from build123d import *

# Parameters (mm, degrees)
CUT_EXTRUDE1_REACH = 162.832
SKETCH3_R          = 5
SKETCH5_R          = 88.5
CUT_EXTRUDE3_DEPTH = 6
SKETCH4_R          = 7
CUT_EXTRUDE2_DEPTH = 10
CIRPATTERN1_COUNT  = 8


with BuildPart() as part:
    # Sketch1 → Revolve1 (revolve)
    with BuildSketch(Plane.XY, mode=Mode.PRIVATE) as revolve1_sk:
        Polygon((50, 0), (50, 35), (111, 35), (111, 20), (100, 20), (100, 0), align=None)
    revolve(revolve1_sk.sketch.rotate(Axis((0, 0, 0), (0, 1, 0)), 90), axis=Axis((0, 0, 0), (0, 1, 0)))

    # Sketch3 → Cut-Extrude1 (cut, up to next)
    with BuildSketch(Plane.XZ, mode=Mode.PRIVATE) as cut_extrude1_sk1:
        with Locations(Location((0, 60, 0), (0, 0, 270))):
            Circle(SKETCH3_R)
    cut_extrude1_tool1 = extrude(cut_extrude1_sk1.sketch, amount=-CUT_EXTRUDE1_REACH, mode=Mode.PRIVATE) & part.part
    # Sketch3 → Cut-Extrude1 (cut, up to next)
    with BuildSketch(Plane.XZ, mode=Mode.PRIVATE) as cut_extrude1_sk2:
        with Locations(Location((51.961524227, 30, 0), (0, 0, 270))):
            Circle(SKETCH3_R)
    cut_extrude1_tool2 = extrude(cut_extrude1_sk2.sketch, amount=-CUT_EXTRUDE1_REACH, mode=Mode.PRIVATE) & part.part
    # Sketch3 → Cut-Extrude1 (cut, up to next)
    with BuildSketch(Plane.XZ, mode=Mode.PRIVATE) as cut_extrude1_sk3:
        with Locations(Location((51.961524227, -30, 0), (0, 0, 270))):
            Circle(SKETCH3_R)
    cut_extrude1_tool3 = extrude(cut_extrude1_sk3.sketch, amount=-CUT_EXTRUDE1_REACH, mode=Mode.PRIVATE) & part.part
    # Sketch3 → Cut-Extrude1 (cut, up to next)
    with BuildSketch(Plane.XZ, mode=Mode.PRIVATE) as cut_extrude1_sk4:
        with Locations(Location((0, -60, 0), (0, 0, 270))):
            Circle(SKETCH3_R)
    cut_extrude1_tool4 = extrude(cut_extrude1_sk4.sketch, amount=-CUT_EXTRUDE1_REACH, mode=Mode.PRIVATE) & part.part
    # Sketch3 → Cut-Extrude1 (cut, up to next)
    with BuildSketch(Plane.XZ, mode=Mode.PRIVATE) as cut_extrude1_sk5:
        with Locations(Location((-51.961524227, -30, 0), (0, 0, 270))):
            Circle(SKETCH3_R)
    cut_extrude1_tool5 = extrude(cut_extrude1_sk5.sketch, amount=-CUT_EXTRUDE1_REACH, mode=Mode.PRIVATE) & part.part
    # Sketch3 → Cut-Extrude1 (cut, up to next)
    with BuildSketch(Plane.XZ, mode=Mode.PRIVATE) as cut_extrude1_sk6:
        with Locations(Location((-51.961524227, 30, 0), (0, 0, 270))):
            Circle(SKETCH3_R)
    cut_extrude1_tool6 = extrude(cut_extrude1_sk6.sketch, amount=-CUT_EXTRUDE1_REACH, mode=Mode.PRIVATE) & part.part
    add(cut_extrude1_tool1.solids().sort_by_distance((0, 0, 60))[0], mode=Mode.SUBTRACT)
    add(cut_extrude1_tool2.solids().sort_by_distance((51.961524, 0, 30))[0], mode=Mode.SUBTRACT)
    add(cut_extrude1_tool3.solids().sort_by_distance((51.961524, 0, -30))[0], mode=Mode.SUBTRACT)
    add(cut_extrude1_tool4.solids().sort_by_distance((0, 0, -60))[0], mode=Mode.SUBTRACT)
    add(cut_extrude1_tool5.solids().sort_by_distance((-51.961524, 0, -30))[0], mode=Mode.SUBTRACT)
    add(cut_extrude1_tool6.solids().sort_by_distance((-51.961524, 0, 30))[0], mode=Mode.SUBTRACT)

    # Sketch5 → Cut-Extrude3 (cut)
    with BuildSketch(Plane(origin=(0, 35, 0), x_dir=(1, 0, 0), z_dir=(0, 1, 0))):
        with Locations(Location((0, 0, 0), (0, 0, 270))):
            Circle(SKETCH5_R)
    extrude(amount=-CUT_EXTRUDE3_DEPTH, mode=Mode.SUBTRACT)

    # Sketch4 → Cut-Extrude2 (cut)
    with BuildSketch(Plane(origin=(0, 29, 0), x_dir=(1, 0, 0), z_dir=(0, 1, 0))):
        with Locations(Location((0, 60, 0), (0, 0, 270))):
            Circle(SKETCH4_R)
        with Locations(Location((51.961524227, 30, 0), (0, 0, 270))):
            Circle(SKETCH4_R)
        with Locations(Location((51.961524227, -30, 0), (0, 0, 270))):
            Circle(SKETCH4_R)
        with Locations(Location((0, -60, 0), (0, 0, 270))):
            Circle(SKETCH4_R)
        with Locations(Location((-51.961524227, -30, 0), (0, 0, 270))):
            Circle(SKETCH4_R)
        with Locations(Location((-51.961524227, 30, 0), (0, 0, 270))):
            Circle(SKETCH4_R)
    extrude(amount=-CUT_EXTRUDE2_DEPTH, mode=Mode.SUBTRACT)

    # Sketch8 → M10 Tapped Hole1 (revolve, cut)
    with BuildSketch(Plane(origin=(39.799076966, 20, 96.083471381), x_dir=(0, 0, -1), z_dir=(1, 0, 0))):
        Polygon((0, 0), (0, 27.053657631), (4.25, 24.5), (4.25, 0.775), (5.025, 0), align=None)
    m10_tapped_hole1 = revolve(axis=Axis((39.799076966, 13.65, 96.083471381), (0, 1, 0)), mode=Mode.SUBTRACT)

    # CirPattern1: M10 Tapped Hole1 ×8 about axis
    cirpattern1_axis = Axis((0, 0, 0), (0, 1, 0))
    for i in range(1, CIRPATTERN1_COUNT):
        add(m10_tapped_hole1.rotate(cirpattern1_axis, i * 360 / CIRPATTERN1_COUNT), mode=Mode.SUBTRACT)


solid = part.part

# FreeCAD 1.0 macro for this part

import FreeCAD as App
import Part
import Sketcher
Q = App.Units.Quantity

doc = App.newDocument("Part")
params = doc.addObject("Spreadsheet::Sheet", "Params")
for row, (alias, value) in enumerate([
    ("sketch1_width", "50 mm"),
    ("sketch1_width2", "11 mm"),
    ("sketch1_height", "35 mm"),
    ("sketch1_height2", "20 mm"),
    ("revolution_angle", "360 deg"),
    ("sketch2_diameter", "10 mm"),
    ("sketch3_diameter", "10 mm"),
    ("sketch4_diameter", "10 mm"),
    ("sketch5_diameter", "10 mm"),
    ("sketch6_diameter", "10 mm"),
    ("sketch7_diameter", "10 mm"),
    ("sketch8_diameter", "177 mm"),
    ("pocket7_length", "6 mm"),
    ("sketch9_diameter", "14 mm"),
    ("pocket8_length", "10 mm"),
    ("groove_angle", "360 deg"),
], start=1):
    params.set(f"A{row}", alias)
    params.set(f"B{row}", "=" + value)
    params.setAlias(f"B{row}", alias)

body = doc.addObject("PartDesign::Body", "Body")

sketch1 = doc.addObject("Sketcher::SketchObject", "Sketch")
body.addObject(sketch1)
sketch1.AttachmentSupport = (doc.XY_Plane, [""])
sketch1.MapMode = "FlatFace"
sketch1.addGeometry(Part.LineSegment(App.Vector(50, 35, 0), App.Vector(50, 0, 0)), False)
sketch1.addGeometry(Part.LineSegment(App.Vector(50, 0, 0), App.Vector(100, 0, 0)), False)
sketch1.addGeometry(Part.LineSegment(App.Vector(100, 0, 0), App.Vector(100, 20, 0)), False)
sketch1.addGeometry(Part.LineSegment(App.Vector(100, 20, 0), App.Vector(111, 20, 0)), False)
sketch1.addGeometry(Part.LineSegment(App.Vector(111, 20, 0), App.Vector(111, 35, 0)), False)
sketch1.addGeometry(Part.LineSegment(App.Vector(111, 35, 0), App.Vector(50, 35, 0)), False)
sketch1.addConstraint(Sketcher.Constraint("Coincident", 0, 2, 1, 1))
sketch1.addConstraint(Sketcher.Constraint("Coincident", 1, 2, 2, 1))
sketch1.addConstraint(Sketcher.Constraint("Coincident", 2, 2, 3, 1))
sketch1.addConstraint(Sketcher.Constraint("Coincident", 3, 2, 4, 1))
sketch1.addConstraint(Sketcher.Constraint("Coincident", 4, 2, 5, 1))
sketch1.addConstraint(Sketcher.Constraint("Coincident", 5, 2, 0, 1))
sketch1.addConstraint(Sketcher.Constraint("Vertical", 0))
sketch1.addConstraint(Sketcher.Constraint("Horizontal", 1))
sketch1.addConstraint(Sketcher.Constraint("Vertical", 2))
sketch1.addConstraint(Sketcher.Constraint("Horizontal", 3))
sketch1.addConstraint(Sketcher.Constraint("Vertical", 4))
sketch1.addConstraint(Sketcher.Constraint("Horizontal", 5))
sketch1.addConstraint(Sketcher.Constraint("PointOnObject", 0, 2, -1))
sketch1.addConstraint(Sketcher.Constraint("DistanceX", 1, 1, 1, 2, Q("50 mm")))
sketch1.addConstraint(Sketcher.Constraint("DistanceX", 3, 1, 3, 2, Q("11 mm")))
sketch1.addConstraint(Sketcher.Constraint("DistanceY", 0, 2, 0, 1, Q("35 mm")))
sketch1.addConstraint(Sketcher.Constraint("DistanceY", 2, 1, 2, 2, Q("20 mm")))
sketch1.addConstraint(Sketcher.Constraint("DistanceX", -1, 1, 0, 2, Q("50 mm")))
sketch1.setExpression("Constraints[13]", "Params.sketch1_width")
sketch1.setExpression("Constraints[14]", "Params.sketch1_width2")
sketch1.setExpression("Constraints[15]", "Params.sketch1_height")
sketch1.setExpression("Constraints[16]", "Params.sketch1_height2")
revolution = doc.addObject("PartDesign::Revolution", "Revolution")
body.addObject(revolution)
revolution.Profile = sketch1
revolution.ReferenceAxis = (sketch1, ["V_Axis"])
revolution.setExpression("Angle", "Params.revolution_angle")

sketch2 = doc.addObject("Sketcher::SketchObject", "Sketch001")
body.addObject(sketch2)
sketch2.AttachmentSupport = (doc.XZ_Plane, [""])
sketch2.MapMode = "FlatFace"
sketch2.addGeometry(Part.Circle(App.Vector(0, 60, 0), App.Vector(0, 0, 1), 5), False)
sketch2.addConstraint(Sketcher.Constraint("PointOnObject", 0, 3, -2))
sketch2.addConstraint(Sketcher.Constraint("Diameter", 0, Q("10 mm")))
sketch2.addConstraint(Sketcher.Constraint("DistanceY", -1, 1, 0, 3, Q("60 mm")))
sketch2.setExpression("Constraints[1]", "Params.sketch2_diameter")
pocket1 = doc.addObject("PartDesign::Pocket", "Pocket")
body.addObject(pocket1)
pocket1.Profile = sketch2
pocket1.Type = "UpToFirst"

sketch3 = doc.addObject("Sketcher::SketchObject", "Sketch002")
body.addObject(sketch3)
sketch3.AttachmentSupport = (doc.XZ_Plane, [""])
sketch3.MapMode = "FlatFace"
sketch3.addGeometry(Part.Circle(App.Vector(52, 30, 0), App.Vector(0, 0, 1), 5), False)
sketch3.addConstraint(Sketcher.Constraint("Diameter", 0, Q("10 mm")))
sketch3.addConstraint(Sketcher.Constraint("DistanceY", -1, 1, 0, 3, Q("30 mm")))
sketch3.addConstraint(Sketcher.Constraint("DistanceX", -1, 1, 0, 3, Q("51.961524 mm")))
sketch3.setExpression("Constraints[0]", "Params.sketch3_diameter")
pocket2 = doc.addObject("PartDesign::Pocket", "Pocket001")
body.addObject(pocket2)
pocket2.Profile = sketch3
pocket2.Type = "UpToFirst"

sketch4 = doc.addObject("Sketcher::SketchObject", "Sketch003")
body.addObject(sketch4)
sketch4.AttachmentSupport = (doc.XZ_Plane, [""])
sketch4.MapMode = "FlatFace"
sketch4.addGeometry(Part.Circle(App.Vector(52, -30, 0), App.Vector(0, 0, 1), 5), False)
sketch4.addConstraint(Sketcher.Constraint("Diameter", 0, Q("10 mm")))
sketch4.addConstraint(Sketcher.Constraint("DistanceY", 0, 3, -1, 1, Q("30 mm")))
sketch4.addConstraint(Sketcher.Constraint("DistanceX", -1, 1, 0, 3, Q("51.961524 mm")))
sketch4.setExpression("Constraints[0]", "Params.sketch4_diameter")
pocket3 = doc.addObject("PartDesign::Pocket", "Pocket002")
body.addObject(pocket3)
pocket3.Profile = sketch4
pocket3.Type = "UpToFirst"

sketch5 = doc.addObject("Sketcher::SketchObject", "Sketch004")
body.addObject(sketch5)
sketch5.AttachmentSupport = (doc.XZ_Plane, [""])
sketch5.MapMode = "FlatFace"
sketch5.addGeometry(Part.Circle(App.Vector(0, -60, 0), App.Vector(0, 0, 1), 5), False)
sketch5.addConstraint(Sketcher.Constraint("PointOnObject", 0, 3, -2))
sketch5.addConstraint(Sketcher.Constraint("Diameter", 0, Q("10 mm")))
sketch5.addConstraint(Sketcher.Constraint("DistanceY", 0, 3, -1, 1, Q("60 mm")))
sketch5.setExpression("Constraints[1]", "Params.sketch5_diameter")
pocket4 = doc.addObject("PartDesign::Pocket", "Pocket003")
body.addObject(pocket4)
pocket4.Profile = sketch5
pocket4.Type = "UpToFirst"

sketch6 = doc.addObject("Sketcher::SketchObject", "Sketch005")
body.addObject(sketch6)
sketch6.AttachmentSupport = (doc.XZ_Plane, [""])
sketch6.MapMode = "FlatFace"
sketch6.addGeometry(Part.Circle(App.Vector(-52, -30, 0), App.Vector(0, 0, 1), 5), False)
sketch6.addConstraint(Sketcher.Constraint("Diameter", 0, Q("10 mm")))
sketch6.addConstraint(Sketcher.Constraint("DistanceY", 0, 3, -1, 1, Q("30 mm")))
sketch6.addConstraint(Sketcher.Constraint("DistanceX", 0, 3, -1, 1, Q("51.961524 mm")))
sketch6.setExpression("Constraints[0]", "Params.sketch6_diameter")
pocket5 = doc.addObject("PartDesign::Pocket", "Pocket004")
body.addObject(pocket5)
pocket5.Profile = sketch6
pocket5.Type = "UpToFirst"

sketch7 = doc.addObject("Sketcher::SketchObject", "Sketch006")
body.addObject(sketch7)
sketch7.AttachmentSupport = (doc.XZ_Plane, [""])
sketch7.MapMode = "FlatFace"
sketch7.addGeometry(Part.Circle(App.Vector(-52, 30, 0), App.Vector(0, 0, 1), 5), False)
sketch7.addConstraint(Sketcher.Constraint("Diameter", 0, Q("10 mm")))
sketch7.addConstraint(Sketcher.Constraint("DistanceY", -1, 1, 0, 3, Q("30 mm")))
sketch7.addConstraint(Sketcher.Constraint("DistanceX", 0, 3, -1, 1, Q("51.961524 mm")))
sketch7.setExpression("Constraints[0]", "Params.sketch7_diameter")
pocket6 = doc.addObject("PartDesign::Pocket", "Pocket005")
body.addObject(pocket6)
pocket6.Profile = sketch7
pocket6.Type = "UpToFirst"

sketch8 = doc.addObject("Sketcher::SketchObject", "Sketch007")
body.addObject(sketch8)
sketch8.AttachmentSupport = (doc.XZ_Plane, [""])
sketch8.MapMode = "FlatFace"
sketch8.AttachmentOffset = App.Placement(App.Vector(0, 0, -35), App.Rotation())
sketch8.addGeometry(Part.Circle(App.Vector(0, 0, 0), App.Vector(0, 0, 1), 88), False)
sketch8.addConstraint(Sketcher.Constraint("Coincident", 0, 3, -1, 1))
sketch8.addConstraint(Sketcher.Constraint("Diameter", 0, Q("177 mm")))
sketch8.setExpression("Constraints[1]", "Params.sketch8_diameter")
pocket7 = doc.addObject("PartDesign::Pocket", "Pocket006")
body.addObject(pocket7)
pocket7.Profile = sketch8
pocket7.setExpression("Length", "Params.pocket7_length")
pocket7.Reversed = True

sketch9 = doc.addObject("Sketcher::SketchObject", "Sketch008")
body.addObject(sketch9)
sketch9.AttachmentSupport = (doc.XZ_Plane, [""])
sketch9.MapMode = "FlatFace"
sketch9.AttachmentOffset = App.Placement(App.Vector(0, 0, -29), App.Rotation())
sketch9.addGeometry(Part.Circle(App.Vector(0, -60, 0), App.Vector(0, 0, 1), 7), False)
sketch9.addGeometry(Part.Circle(App.Vector(52, -30, 0), App.Vector(0, 0, 1), 7), False)
sketch9.addGeometry(Part.Circle(App.Vector(52, 30, 0), App.Vector(0, 0, 1), 7), False)
sketch9.addGeometry(Part.Circle(App.Vector(0, 60, 0), App.Vector(0, 0, 1), 7), False)
sketch9.addGeometry(Part.Circle(App.Vector(-52, 30, 0), App.Vector(0, 0, 1), 7), False)
sketch9.addGeometry(Part.Circle(App.Vector(-52, -30, 0), App.Vector(0, 0, 1), 7), False)
sketch9.addConstraint(Sketcher.Constraint("Equal", 0, 1))
sketch9.addConstraint(Sketcher.Constraint("Equal", 1, 2))
sketch9.addConstraint(Sketcher.Constraint("Equal", 2, 3))
sketch9.addConstraint(Sketcher.Constraint("Equal", 3, 4))
sketch9.addConstraint(Sketcher.Constraint("Equal", 4, 5))
sketch9.addConstraint(Sketcher.Constraint("Symmetric", 0, 3, 3, 3, -1, 1))
sketch9.addConstraint(Sketcher.Constraint("Symmetric", 1, 3, 4, 3, -1, 1))
sketch9.addConstraint(Sketcher.Constraint("Symmetric", 2, 3, 5, 3, -1, 1))
sketch9.addConstraint(Sketcher.Constraint("Symmetric", 2, 3, 4, 3, -2))
sketch9.addConstraint(Sketcher.Constraint("PointOnObject", 0, 3, -2))
sketch9.addConstraint(Sketcher.Constraint("Diameter", 0, Q("14 mm")))
sketch9.addConstraint(Sketcher.Constraint("DistanceY", 0, 3, -1, 1, Q("60 mm")))
sketch9.addConstraint(Sketcher.Constraint("DistanceY", 1, 3, -1, 1, Q("30 mm")))
sketch9.addConstraint(Sketcher.Constraint("DistanceX", 4, 3, 2, 3, Q("103.923048 mm")))
sketch9.setExpression("Constraints[10]", "Params.sketch9_diameter")
pocket8 = doc.addObject("PartDesign::Pocket", "Pocket007")
body.addObject(pocket8)
pocket8.Profile = sketch9
pocket8.setExpression("Length", "Params.pocket8_length")
pocket8.Reversed = True

sketch10 = doc.addObject("Sketcher::SketchObject", "Sketch009")
body.addObject(sketch10)
sketch10.AttachmentSupport = (doc.YZ_Plane, [""])
sketch10.MapMode = "FlatFace"
sketch10.AttachmentOffset = App.Placement(App.Vector(0, 0, 39.799077), App.Rotation())
sketch10.addGeometry(Part.LineSegment(App.Vector(47.1, 96.1, 0), App.Vector(20, 96.1, 0)), False)
sketch10.addGeometry(Part.LineSegment(App.Vector(20, 96.1, 0), App.Vector(20, 91.1, 0)), False)
sketch10.addGeometry(Part.LineSegment(App.Vector(20, 91.1, 0), App.Vector(20.8, 91.8, 0)), False)
sketch10.addGeometry(Part.LineSegment(App.Vector(20.8, 91.8, 0), App.Vector(44.5, 91.8, 0)), False)
sketch10.addGeometry(Part.LineSegment(App.Vector(44.5, 91.8, 0), App.Vector(47.1, 96.1, 0)), False)
sketch10.addGeometry(Part.LineSegment(App.Vector(20, 96.1, 0), App.Vector(47.1, 96.1, 0)), True)
sketch10.addConstraint(Sketcher.Constraint("Coincident", 0, 2, 1, 1))
sketch10.addConstraint(Sketcher.Constraint("Coincident", 1, 2, 2, 1))
sketch10.addConstraint(Sketcher.Constraint("Coincident", 2, 2, 3, 1))
sketch10.addConstraint(Sketcher.Constraint("Coincident", 3, 2, 4, 1))
sketch10.addConstraint(Sketcher.Constraint("Coincident", 4, 2, 0, 1))
sketch10.addConstraint(Sketcher.Constraint("Horizontal", 0))
sketch10.addConstraint(Sketcher.Constraint("Vertical", 1))
sketch10.addConstraint(Sketcher.Constraint("Horizontal", 3))
sketch10.addConstraint(Sketcher.Constraint("Horizontal", 5))
sketch10.addConstraint(Sketcher.Constraint("Coincident", 5, 1, 0, 2))
sketch10.addConstraint(Sketcher.Constraint("Equal", 0, 5))
sketch10.addConstraint(Sketcher.Constraint("Angle", 2, Q("45 deg")))
sketch10.addConstraint(Sketcher.Constraint("Angle", 4, Q("59 deg")))
sketch10.addConstraint(Sketcher.Constraint("DistanceX", -1, 1, 0, 2, Q("20 mm")))
sketch10.addConstraint(Sketcher.Constraint("DistanceX", -1, 1, 3, 2, Q("44.5 mm")))
sketch10.addConstraint(Sketcher.Constraint("DistanceX", 3, 1, 3, 2, Q("23.725 mm")))
sketch10.addConstraint(Sketcher.Constraint("DistanceY", 1, 2, 1, 1, Q("5.025 mm")))
sketch10.addConstraint(Sketcher.Constraint("DistanceY", -1, 1, 0, 2, Q("96.083471 mm")))
groove = doc.addObject("PartDesign::Groove", "Groove")
body.addObject(groove)
groove.Profile = sketch10
groove.ReferenceAxis = (sketch10, ["Axis0"])
groove.setExpression("Angle", "Params.groove_angle")
doc.recompute()

polarpattern = doc.addObject("PartDesign::PolarPattern", "PolarPattern")
body.addObject(polarpattern)
polarpattern.Originals = [groove]
polarpattern.Axis = (doc.Y_Axis, [""])
polarpattern.Angle = 360
polarpattern.Occurrences = 8
body.Tip = polarpattern

doc.recompute()
